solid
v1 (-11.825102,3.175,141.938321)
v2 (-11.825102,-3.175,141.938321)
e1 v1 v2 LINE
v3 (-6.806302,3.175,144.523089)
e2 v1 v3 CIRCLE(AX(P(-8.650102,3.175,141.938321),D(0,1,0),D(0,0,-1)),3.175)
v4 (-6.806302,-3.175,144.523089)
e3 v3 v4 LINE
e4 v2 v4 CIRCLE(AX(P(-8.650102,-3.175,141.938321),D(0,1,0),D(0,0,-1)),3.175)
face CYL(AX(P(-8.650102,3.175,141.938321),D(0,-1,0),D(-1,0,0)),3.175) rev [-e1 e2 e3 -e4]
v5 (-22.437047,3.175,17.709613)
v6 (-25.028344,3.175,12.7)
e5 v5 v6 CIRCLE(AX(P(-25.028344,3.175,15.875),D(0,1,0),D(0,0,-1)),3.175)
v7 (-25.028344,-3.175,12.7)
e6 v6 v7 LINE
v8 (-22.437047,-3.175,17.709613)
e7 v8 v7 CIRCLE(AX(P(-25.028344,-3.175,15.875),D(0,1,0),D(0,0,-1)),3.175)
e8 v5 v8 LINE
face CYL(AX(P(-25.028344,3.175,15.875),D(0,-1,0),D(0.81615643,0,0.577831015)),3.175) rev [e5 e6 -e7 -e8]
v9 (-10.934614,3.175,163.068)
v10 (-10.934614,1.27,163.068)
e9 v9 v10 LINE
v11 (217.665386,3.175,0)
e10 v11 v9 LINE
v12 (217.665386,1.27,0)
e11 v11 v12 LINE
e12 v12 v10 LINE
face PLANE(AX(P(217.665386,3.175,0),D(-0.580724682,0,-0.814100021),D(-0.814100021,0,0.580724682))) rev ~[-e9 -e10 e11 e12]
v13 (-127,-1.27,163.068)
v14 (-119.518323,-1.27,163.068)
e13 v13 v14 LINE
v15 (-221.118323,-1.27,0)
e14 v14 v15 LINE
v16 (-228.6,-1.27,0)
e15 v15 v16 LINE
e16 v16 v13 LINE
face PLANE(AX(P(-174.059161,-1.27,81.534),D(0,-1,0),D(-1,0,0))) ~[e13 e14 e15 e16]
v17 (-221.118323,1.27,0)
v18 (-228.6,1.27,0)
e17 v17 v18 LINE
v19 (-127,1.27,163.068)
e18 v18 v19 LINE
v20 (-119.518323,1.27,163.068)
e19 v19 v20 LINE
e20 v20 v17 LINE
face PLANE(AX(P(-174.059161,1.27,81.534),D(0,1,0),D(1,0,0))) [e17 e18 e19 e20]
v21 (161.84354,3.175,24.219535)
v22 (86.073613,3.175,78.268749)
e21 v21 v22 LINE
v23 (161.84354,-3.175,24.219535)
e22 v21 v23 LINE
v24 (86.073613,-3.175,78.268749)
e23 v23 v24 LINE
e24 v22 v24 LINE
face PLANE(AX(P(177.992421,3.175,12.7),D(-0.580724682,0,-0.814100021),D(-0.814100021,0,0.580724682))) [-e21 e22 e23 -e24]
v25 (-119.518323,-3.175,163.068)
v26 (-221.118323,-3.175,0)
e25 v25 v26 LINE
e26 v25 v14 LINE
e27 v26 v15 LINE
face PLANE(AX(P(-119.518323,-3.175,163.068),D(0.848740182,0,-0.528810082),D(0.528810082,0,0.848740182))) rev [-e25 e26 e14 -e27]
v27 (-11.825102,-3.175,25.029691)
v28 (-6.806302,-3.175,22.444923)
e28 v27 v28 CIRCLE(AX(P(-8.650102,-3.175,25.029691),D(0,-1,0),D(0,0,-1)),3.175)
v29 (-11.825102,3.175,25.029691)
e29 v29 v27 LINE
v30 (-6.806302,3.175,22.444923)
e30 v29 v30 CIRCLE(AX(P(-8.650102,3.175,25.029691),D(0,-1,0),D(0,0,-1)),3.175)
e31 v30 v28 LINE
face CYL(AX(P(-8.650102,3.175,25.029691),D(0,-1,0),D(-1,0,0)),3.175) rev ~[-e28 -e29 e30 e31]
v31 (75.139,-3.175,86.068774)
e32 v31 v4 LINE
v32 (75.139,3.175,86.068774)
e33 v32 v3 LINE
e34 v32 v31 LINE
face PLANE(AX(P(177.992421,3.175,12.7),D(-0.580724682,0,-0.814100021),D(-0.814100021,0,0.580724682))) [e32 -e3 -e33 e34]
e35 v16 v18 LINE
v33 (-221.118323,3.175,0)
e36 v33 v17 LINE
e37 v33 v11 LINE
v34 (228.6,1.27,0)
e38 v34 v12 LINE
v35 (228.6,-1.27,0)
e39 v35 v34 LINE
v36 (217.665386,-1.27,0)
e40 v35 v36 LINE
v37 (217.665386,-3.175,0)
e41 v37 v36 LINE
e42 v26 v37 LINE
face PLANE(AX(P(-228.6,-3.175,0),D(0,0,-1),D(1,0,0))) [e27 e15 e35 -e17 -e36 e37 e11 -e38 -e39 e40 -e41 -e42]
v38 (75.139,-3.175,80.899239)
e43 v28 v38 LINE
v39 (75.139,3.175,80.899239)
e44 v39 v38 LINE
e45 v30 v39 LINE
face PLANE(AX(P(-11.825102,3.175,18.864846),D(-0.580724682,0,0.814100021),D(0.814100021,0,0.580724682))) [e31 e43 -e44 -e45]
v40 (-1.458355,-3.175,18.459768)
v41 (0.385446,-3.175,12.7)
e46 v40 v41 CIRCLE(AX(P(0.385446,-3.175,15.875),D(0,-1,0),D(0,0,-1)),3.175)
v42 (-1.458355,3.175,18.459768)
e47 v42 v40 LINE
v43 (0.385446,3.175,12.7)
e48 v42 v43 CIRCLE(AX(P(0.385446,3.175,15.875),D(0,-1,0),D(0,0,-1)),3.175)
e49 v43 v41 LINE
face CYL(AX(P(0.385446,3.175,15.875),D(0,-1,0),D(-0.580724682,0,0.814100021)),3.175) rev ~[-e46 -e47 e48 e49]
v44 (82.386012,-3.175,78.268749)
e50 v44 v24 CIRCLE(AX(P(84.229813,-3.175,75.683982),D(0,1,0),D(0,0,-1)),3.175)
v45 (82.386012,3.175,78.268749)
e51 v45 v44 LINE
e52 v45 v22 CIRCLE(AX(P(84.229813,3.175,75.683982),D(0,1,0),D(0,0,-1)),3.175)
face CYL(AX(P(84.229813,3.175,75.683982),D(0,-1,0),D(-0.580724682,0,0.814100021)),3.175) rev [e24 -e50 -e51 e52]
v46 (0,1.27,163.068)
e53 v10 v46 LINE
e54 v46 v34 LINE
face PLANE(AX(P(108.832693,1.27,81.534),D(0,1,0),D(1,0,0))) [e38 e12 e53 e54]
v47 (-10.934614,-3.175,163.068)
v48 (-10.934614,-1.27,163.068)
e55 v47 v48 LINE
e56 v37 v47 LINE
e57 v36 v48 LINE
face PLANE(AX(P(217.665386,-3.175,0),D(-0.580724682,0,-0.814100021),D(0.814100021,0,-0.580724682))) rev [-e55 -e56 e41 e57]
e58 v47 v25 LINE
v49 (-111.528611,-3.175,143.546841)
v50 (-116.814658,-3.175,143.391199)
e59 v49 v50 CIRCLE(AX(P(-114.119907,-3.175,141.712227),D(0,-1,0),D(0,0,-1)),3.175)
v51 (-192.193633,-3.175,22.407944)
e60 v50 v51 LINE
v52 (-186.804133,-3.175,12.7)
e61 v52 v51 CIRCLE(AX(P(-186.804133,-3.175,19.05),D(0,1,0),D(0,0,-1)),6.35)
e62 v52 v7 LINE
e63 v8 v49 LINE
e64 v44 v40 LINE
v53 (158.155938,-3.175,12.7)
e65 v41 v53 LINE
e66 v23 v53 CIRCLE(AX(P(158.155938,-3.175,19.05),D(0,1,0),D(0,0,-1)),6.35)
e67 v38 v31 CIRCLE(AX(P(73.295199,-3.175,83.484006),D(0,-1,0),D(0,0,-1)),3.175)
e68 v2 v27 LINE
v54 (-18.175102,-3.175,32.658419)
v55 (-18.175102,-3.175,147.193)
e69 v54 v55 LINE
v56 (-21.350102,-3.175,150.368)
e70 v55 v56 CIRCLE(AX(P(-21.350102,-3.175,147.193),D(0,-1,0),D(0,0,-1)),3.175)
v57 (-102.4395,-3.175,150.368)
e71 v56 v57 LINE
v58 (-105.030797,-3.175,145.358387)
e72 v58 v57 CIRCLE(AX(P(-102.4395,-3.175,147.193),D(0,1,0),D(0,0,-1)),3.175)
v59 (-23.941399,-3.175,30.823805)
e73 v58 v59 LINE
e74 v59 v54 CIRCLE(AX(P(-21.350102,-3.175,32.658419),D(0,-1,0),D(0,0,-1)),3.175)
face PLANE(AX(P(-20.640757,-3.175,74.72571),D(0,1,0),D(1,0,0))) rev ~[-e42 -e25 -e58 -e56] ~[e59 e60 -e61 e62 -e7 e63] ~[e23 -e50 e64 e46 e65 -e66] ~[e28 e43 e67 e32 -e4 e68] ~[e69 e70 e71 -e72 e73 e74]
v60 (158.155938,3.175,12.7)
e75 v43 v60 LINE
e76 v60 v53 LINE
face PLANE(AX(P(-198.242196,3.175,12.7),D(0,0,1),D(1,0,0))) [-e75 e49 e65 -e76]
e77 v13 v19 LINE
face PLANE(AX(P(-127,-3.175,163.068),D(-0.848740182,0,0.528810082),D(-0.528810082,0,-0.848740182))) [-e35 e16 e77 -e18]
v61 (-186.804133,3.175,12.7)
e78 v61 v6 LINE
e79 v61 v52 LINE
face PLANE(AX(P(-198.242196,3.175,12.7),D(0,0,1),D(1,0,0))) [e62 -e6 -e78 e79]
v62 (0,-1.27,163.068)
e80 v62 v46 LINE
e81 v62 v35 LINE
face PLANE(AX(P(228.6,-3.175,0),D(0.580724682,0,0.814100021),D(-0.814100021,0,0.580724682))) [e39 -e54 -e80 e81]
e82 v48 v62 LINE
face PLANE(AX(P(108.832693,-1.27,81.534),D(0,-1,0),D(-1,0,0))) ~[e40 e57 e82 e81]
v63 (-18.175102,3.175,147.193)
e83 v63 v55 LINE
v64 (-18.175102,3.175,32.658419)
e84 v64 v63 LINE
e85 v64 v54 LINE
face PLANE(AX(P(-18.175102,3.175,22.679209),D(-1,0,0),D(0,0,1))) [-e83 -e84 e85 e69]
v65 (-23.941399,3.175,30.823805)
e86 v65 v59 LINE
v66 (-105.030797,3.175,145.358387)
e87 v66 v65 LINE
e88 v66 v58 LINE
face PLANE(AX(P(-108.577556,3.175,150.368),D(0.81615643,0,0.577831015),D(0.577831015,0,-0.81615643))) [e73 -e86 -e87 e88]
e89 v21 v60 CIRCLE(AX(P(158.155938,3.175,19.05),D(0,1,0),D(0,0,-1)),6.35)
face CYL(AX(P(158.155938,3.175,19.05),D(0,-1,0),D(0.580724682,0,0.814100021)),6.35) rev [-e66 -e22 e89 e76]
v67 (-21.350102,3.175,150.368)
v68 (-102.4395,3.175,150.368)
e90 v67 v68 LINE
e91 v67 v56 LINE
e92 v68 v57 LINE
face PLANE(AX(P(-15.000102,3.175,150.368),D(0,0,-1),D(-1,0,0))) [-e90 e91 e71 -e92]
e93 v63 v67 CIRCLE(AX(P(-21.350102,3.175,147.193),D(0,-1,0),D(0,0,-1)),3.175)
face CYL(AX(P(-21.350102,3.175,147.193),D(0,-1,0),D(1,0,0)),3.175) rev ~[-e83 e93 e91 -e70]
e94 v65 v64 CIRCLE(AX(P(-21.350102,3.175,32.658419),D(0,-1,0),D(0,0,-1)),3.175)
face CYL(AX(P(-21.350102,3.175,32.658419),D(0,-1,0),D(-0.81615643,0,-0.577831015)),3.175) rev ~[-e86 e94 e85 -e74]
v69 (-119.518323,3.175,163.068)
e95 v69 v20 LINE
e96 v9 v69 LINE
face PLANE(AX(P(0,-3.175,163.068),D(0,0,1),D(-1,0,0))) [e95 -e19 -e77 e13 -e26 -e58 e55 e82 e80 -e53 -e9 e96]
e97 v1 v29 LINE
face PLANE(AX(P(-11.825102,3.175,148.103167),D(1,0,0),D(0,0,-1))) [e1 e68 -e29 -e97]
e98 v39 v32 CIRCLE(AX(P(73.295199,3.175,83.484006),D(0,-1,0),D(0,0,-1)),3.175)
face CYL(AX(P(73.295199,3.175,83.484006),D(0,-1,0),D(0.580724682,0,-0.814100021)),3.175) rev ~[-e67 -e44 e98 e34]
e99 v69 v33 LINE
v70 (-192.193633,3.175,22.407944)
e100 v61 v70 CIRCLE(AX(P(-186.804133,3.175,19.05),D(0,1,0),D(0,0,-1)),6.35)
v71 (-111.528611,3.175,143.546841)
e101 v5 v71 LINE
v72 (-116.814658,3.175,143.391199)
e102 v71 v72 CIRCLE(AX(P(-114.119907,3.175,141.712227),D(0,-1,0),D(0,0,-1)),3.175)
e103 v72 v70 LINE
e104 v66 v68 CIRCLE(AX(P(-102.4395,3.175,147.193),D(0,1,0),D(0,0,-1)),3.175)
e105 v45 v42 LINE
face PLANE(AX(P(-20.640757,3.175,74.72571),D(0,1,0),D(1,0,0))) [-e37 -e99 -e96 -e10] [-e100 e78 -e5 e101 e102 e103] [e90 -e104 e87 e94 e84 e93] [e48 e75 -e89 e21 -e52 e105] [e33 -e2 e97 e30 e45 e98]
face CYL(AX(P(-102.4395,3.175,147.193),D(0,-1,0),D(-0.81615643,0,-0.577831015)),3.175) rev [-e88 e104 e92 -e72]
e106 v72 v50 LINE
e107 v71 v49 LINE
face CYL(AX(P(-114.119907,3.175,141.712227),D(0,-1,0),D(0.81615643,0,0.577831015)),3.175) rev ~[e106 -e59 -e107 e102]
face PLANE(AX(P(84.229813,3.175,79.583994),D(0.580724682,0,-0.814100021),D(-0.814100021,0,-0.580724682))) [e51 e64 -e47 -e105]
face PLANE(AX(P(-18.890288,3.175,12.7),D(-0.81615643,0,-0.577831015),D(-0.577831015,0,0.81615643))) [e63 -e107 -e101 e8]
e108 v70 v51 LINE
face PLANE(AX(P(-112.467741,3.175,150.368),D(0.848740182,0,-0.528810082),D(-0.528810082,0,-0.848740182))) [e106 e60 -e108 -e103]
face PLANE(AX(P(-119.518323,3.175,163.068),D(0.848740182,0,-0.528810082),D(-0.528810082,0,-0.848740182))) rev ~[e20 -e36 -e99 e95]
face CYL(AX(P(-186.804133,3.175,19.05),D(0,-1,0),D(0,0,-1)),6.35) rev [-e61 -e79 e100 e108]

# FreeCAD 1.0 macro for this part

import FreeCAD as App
import Part
import Sketcher

V = App.Vector
Q = App.Units.Quantity


def edges_at(feature, points):
    """Names of the edges that pass closest to the given points."""
    edges = feature.Shape.Edges
    near = lambda p: min(range(len(edges)), key=lambda i: edges[i].distToShape(Part.Vertex(*p))[0])
    return sorted({f"Edge{near(p) + 1}" for p in points})


def add_polygon(sketch, points):
    """Adds a closed chain of lines whose ends are joined by coincident constraints."""
    first, n = sketch.GeometryCount, len(points)
    for a, b in zip(points, points[1:] + points[:1]):
        sketch.addGeometry(Part.LineSegment(App.Vector(*a, 0), App.Vector(*b, 0)), False)
    for i in range(n):
        sketch.addConstraint(Sketcher.Constraint("Coincident", first + i, 2, first + (i + 1) % n, 1))

doc = App.newDocument("Part")
body = doc.addObject("PartDesign::Body", "Body")

# Sketch on XZ plane
sketch1 = body.newObject("Sketcher::SketchObject", "Sketch")
sketch1.AttachmentSupport = (doc.getObject("XZ_Plane"), [""])
sketch1.MapMode = "FlatFace"
add_polygon(sketch1, [(229, 0), (-229, 0), (-127, 163), (0, 163)])  # lines 0-3
sketch1.addConstraint([
    Sketcher.Constraint("Horizontal", 0),
    Sketcher.Constraint("Horizontal", 2),
    Sketcher.Constraint("Symmetric", 0, 2, 3, 2, -1, 1),
    Sketcher.Constraint("PointOnObject", 2, 2, -2),
    Sketcher.Constraint("DistanceX", 0, 2, 0, 1, Q("18 in")),
    Sketcher.Constraint("DistanceX", 2, 1, 2, 2, Q("5 in")),
    Sketcher.Constraint("DistanceY", -1, 1, 1, 2, Q("6.42 in")),
])
pad1 = body.newObject("PartDesign::Pad", "Pad")
pad1.Profile = sketch1
pad1.Type = "TwoLengths"
pad1.Length = Q("0.125 in")
pad1.Length2 = Q("0.125 in")
pad1.Reversed = True

# Sketch on XZ plane
sketch2 = body.newObject("Sketcher::SketchObject", "Sketch001")
sketch2.AttachmentSupport = (doc.getObject("XZ_Plane"), [""])
sketch2.MapMode = "FlatFace"
sketch2.AttachmentOffset = App.Placement(V(0, 0, -0.125 * 25.4), App.Rotation())
add_polygon(sketch2, [(-229, 0), (-127, 163), (-120, 163), (-221, 0)])  # lines 0-3
add_polygon(sketch2, [(0, 163), (229, 0), (218, 0), (-11, 163)])  # lines 4-7
sketch2.addConstraint([
    Sketcher.Constraint("Horizontal", 1),
    Sketcher.Constraint("Horizontal", 3),
    Sketcher.Constraint("Horizontal", 5),
    Sketcher.Constraint("Horizontal", 7),
    Sketcher.Constraint("Symmetric", 3, 2, 4, 2, -1, 1),
    Sketcher.Constraint("PointOnObject", 2, 2, -1),
    Sketcher.Constraint("PointOnObject", 7, 2, -2),
    Sketcher.Constraint("Parallel", 0, 2),
    Sketcher.Constraint("Parallel", 4, 6),
    Sketcher.Constraint("Horizontal", 1, 2, 6, 2),
    Sketcher.Constraint("DistanceX", 0, 2, -1, 1, Q("5 in")),
    Sketcher.Constraint("DistanceX", 3, 2, -1, 1, Q("9 in")),
    Sketcher.Constraint("DistanceY", -1, 1, 0, 2, Q("6.42 in")),
    Sketcher.Constraint("DistanceX", 1, 1, 1, 2, 7.481677),
    Sketcher.Constraint("DistanceX", 5, 2, 5, 1, 10.934614),
])
pocket1 = body.newObject("PartDesign::Pocket", "Pocket")
pocket1.Profile = sketch2
pocket1.Length = Q("0.075 in")
pocket1.Reversed = True
doc.recompute()

mirrored = body.newObject("PartDesign::Mirrored", "Mirrored")
mirrored.Originals = [pocket1]
mirrored.MirrorPlane = (doc.getObject("XZ_Plane"), [""])
body.Tip = mirrored

# Sketch on XZ plane
sketch3 = body.newObject("Sketcher::SketchObject", "Sketch002")
sketch3.AttachmentSupport = (doc.getObject("XZ_Plane"), [""])
sketch3.MapMode = "FlatFace"
sketch3.AttachmentOffset = App.Placement(V(0, 0, -0.125 * 25.4), App.Rotation())
add_polygon(sketch3, [(178, 13), (-198, 13), (-112, 150), (-15, 150)])  # lines 0-3
sketch3.addConstraint([
    Sketcher.Constraint("Horizontal", 0),
    Sketcher.Constraint("Horizontal", 2),
    Sketcher.Constraint("DistanceY", -1, 1, 0, 2, Q("0.5 in")),
    Sketcher.Constraint("DistanceY", -1, 1, 1, 2, Q("5.92 in")),
    Sketcher.Constraint("DistanceX", 2, 1, 2, 2, 97.467639),
    Sketcher.Constraint("Distance", 1, 162.20276),
    Sketcher.Constraint("DistanceX", 0, 2, 0, 1, 376.234617),
    Sketcher.Constraint("DistanceX", 1, 2, -1, 1, 112.467741),
])
pocket2 = body.newObject("PartDesign::Pocket", "Pocket001")
pocket2.Profile = sketch3
pocket2.Length = Q("0.25 in")
pocket2.Reversed = True

# Sketch on XZ plane
sketch4 = body.newObject("Sketcher::SketchObject", "Sketch003")
sketch4.AttachmentSupport = (doc.getObject("XZ_Plane"), [""])
sketch4.MapMode = "FlatFace"
sketch4.AttachmentOffset = App.Placement(V(0, 0, -0.125 * 25.4), App.Rotation())
add_polygon(sketch4, [(-18.9, 12.7), (-114.3, 147.4), (-112.5, 150.4), (-108.6, 150.4), (-18.2, 22.7), (-18.2, 150.4), (-15, 150.4), (-11.8, 148.1), (-11.8, 18.9), (78.8, 83.5), (84.2, 79.6), (-9.5, 12.7)])  # lines 0-11
sketch4.addConstraint([
    Sketcher.Constraint("Horizontal", 2),
    Sketcher.Constraint("Vertical", 4),
    Sketcher.Constraint("Horizontal", 5),
    Sketcher.Constraint("Vertical", 7),
    Sketcher.Constraint("Horizontal", 11),
    Sketcher.Constraint("Parallel", 0, 3),
    Sketcher.Constraint("Parallel", 6, 9),
    Sketcher.Constraint("Parallel", 8, 10),
    Sketcher.Constraint("Horizontal", 2, 2, 4, 2),
    Sketcher.Constraint("DistanceY", -1, 1, 10, 2, Q("0.5 in")),
    Sketcher.Constraint("DistanceX", 5, 1, 5, 2, Q("0.125 in")),
    Sketcher.Constraint("DistanceY", -1, 1, 1, 2, Q("5.92 in")),
    Sketcher.Constraint("DistanceX", 4, 2, 6, 2, Q("0.25 in")),
    Sketcher.Constraint("DistanceY", 4, 1, 4, 2, 127.688791),
    Sketcher.Constraint("DistanceY", 7, 2, 7, 1, 129.238321),
    Sketcher.Constraint("DistanceX", 10, 2, 8, 2, 88.295301),
    Sketcher.Constraint("DistanceX", 11, 2, 9, 2, 103.120101),
    Sketcher.Constraint("Distance", 3, 156.451369),
    Sketcher.Constraint("DistanceX", 2, 1, 2, 2, 3.890186),
    Sketcher.Constraint("DistanceX", 11, 2, 11, 1, 9.357492),
    Sketcher.Constraint("DistanceY", -1, 1, 0, 2, 147.445341),
    Sketcher.Constraint("DistanceX", 1, 2, -1, 1, 112.467741),
    Sketcher.Constraint("DistanceX", 11, 2, -1, 1, 18.890288),
    Sketcher.Constraint("DistanceY", 8, 2, 6, 2, 64.619161),
])
pad2 = body.newObject("PartDesign::Pad", "Pad001")
pad2.Profile = sketch4
pad2.Length = Q("0.25 in")
doc.recompute()

fillet = body.newObject("PartDesign::Fillet", "Fillet")
fillet.Base = (pad2, edges_at(pad2, [
    (-18.175, 0, 150.368),
    (-18.175, 0, 22.679),
    (-108.578, 0, 150.368),
    (-114.289, 0, 147.445),
    (-18.89, 0, 12.7),
    (-9.533, 0, 12.7),
    (84.23, 0, 79.584),
    (78.763, 0, 83.484),
    (-11.825, 0, 18.865),
    (-11.825, 0, 148.103),
]))
fillet.Radius = Q("0.125 in")
doc.recompute()

fillet2 = body.newObject("PartDesign::Fillet", "Fillet001")
fillet2.Base = (fillet, edges_at(fillet, [(-198.242, 0, 12.7), (177.992, 0, 12.7)]))
fillet2.Radius = Q("0.25 in")

doc.recompute()
